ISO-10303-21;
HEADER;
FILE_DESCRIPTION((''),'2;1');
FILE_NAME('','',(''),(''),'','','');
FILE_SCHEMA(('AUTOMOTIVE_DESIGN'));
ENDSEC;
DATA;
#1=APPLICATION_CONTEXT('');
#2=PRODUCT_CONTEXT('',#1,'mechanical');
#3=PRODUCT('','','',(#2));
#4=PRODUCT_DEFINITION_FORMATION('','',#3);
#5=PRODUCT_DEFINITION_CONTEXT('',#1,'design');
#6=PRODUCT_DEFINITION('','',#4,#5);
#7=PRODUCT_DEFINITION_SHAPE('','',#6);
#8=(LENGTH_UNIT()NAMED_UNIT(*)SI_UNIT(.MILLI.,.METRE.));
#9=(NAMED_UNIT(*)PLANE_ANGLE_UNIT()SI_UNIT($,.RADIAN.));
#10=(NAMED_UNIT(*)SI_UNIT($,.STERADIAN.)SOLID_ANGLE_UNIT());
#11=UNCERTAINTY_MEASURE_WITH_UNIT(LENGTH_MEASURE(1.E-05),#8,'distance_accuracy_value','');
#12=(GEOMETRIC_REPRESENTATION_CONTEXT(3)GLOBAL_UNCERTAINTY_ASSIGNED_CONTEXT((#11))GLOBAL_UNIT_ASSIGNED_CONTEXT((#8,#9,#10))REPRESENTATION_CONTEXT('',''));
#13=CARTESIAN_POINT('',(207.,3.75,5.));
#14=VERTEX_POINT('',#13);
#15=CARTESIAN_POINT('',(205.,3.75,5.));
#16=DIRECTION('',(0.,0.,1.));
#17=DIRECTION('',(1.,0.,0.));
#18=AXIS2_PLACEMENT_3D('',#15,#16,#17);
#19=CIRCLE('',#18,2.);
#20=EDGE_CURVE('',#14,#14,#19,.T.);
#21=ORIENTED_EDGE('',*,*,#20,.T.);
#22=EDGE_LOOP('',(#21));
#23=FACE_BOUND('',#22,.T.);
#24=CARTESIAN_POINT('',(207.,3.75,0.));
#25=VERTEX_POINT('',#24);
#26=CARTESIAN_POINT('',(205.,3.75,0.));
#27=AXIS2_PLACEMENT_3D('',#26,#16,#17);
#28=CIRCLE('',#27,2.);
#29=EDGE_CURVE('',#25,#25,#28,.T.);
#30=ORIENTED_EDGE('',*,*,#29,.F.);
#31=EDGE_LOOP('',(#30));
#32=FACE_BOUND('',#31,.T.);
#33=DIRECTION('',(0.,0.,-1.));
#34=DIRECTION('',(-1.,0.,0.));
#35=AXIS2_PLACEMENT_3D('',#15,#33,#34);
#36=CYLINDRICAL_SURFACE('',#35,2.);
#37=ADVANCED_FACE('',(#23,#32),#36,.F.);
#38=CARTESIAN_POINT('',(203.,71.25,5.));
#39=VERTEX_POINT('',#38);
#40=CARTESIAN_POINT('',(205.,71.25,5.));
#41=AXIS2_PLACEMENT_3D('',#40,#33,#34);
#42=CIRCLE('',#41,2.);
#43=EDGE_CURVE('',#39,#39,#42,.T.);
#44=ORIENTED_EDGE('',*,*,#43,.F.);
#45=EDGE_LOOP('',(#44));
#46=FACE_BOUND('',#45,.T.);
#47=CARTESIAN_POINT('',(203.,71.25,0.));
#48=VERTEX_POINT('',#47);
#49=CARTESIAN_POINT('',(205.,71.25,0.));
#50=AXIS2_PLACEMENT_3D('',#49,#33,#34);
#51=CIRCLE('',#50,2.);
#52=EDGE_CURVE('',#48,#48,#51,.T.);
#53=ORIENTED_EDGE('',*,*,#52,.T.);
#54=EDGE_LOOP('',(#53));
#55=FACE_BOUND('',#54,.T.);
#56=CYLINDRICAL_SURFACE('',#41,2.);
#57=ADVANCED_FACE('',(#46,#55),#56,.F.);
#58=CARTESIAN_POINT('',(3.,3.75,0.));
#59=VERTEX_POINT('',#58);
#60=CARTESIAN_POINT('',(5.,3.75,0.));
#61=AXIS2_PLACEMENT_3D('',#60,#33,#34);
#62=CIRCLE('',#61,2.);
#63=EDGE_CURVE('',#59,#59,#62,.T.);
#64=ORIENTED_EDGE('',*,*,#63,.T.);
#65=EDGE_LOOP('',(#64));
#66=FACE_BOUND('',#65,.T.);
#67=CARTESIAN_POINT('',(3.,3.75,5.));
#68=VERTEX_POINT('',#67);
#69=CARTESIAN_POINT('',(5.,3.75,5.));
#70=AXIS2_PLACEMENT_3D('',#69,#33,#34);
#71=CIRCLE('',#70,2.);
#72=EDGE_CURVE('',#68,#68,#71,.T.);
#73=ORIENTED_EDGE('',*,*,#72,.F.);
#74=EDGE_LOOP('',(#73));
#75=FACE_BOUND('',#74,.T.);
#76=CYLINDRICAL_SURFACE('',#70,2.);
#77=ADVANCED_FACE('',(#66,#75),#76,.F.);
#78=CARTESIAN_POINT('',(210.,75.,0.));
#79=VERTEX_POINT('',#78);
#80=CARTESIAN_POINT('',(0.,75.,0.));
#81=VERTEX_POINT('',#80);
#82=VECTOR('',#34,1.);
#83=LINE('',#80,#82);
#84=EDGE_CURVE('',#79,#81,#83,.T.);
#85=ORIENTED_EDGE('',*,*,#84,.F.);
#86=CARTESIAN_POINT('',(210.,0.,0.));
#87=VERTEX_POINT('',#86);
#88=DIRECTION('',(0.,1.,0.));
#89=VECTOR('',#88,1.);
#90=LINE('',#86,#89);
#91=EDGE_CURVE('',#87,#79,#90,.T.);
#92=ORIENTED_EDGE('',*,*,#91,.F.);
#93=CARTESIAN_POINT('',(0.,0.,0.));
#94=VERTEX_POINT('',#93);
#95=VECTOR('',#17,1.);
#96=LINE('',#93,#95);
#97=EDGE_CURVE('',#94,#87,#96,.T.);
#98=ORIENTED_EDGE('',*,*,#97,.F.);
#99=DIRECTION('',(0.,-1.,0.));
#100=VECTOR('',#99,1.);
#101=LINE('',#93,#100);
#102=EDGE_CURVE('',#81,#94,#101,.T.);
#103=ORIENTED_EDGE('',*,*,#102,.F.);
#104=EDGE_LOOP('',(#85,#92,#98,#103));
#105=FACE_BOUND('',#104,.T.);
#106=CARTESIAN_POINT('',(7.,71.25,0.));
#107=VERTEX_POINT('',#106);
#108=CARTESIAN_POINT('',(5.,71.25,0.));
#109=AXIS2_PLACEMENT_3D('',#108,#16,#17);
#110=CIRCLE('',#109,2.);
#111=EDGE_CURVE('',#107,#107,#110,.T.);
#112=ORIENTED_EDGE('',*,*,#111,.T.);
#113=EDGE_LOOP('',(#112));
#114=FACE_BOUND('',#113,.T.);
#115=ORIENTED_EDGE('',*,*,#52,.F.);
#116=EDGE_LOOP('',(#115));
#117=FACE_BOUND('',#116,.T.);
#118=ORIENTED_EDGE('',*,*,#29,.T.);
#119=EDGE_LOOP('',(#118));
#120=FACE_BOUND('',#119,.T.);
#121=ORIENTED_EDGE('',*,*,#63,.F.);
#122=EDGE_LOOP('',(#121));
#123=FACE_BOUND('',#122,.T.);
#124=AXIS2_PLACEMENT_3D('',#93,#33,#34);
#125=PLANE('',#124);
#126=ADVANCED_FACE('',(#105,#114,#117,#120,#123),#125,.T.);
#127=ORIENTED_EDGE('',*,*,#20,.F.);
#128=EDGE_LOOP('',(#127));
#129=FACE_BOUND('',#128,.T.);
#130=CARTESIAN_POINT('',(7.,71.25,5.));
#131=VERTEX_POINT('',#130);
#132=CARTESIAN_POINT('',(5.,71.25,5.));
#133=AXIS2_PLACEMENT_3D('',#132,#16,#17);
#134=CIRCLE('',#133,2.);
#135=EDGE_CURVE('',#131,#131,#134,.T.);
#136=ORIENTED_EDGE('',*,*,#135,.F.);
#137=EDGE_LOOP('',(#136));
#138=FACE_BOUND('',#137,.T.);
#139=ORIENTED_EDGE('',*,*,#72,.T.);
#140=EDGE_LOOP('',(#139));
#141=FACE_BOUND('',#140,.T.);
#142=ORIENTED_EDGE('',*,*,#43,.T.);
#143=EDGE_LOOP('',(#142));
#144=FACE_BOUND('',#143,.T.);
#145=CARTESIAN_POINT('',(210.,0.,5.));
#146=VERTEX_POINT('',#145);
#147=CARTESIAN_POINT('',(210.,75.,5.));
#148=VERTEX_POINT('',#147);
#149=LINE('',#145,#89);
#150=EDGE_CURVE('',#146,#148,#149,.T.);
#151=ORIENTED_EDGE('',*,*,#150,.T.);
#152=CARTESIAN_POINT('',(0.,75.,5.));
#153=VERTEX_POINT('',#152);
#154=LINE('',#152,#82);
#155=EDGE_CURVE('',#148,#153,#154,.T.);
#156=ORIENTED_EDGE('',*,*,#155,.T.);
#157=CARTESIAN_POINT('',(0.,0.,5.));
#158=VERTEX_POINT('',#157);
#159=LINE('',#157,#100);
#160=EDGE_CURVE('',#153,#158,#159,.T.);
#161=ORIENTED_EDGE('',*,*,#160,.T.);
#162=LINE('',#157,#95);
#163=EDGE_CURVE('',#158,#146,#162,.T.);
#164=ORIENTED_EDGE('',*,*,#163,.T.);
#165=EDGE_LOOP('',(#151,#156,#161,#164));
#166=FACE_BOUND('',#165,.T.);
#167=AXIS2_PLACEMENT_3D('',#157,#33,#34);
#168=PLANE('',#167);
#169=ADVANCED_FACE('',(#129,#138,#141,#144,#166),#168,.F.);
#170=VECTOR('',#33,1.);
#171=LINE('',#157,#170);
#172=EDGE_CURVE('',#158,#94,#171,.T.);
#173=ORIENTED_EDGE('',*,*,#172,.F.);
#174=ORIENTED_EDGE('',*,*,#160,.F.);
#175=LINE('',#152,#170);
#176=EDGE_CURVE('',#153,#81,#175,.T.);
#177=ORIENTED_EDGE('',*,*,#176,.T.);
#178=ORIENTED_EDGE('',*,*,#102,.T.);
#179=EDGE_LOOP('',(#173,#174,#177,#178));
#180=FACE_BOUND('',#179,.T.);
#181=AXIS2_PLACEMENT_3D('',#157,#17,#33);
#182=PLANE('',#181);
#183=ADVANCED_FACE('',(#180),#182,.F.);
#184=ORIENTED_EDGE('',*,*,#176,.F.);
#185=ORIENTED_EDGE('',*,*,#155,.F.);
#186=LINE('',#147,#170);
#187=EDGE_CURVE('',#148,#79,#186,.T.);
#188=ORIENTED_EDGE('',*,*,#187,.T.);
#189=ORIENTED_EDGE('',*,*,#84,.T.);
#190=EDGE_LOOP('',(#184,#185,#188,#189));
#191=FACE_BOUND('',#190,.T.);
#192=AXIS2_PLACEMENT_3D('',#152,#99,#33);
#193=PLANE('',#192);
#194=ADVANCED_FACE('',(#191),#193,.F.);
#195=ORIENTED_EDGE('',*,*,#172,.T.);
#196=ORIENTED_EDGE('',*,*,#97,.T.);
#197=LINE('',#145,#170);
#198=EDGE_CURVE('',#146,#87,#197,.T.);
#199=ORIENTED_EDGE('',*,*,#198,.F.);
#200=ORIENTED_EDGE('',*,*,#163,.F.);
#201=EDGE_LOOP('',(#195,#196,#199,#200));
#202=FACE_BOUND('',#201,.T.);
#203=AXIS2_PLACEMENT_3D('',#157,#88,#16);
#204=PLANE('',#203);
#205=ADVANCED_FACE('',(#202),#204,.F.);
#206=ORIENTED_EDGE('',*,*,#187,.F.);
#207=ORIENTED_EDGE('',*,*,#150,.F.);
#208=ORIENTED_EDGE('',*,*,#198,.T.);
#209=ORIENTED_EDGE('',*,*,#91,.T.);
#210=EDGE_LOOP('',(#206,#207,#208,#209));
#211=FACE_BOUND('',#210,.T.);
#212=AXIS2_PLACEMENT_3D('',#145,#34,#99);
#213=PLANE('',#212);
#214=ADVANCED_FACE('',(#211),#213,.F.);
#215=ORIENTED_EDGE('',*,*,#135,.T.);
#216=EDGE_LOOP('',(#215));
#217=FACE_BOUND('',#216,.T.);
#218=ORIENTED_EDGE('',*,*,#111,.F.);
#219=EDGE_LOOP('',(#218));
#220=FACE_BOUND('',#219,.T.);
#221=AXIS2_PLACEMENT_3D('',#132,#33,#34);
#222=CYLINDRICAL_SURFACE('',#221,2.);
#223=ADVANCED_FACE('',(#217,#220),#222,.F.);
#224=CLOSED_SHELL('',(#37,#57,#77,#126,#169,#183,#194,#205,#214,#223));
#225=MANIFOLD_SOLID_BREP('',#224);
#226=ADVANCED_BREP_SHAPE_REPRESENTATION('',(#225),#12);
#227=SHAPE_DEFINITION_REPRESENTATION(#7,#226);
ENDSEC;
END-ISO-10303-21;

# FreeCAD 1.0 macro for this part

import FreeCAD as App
import Part
import Sketcher
from FreeCAD import Vector


def add_polygon(sketch, points):
    """Adds a closed chain of lines whose ends are joined by coincident constraints."""
    first, n = sketch.GeometryCount, len(points)
    for a, b in zip(points, points[1:] + points[:1]):
        sketch.addGeometry(Part.LineSegment(App.Vector(*a, 0), App.Vector(*b, 0)), False)
    for i in range(n):
        sketch.addConstraint(Sketcher.Constraint("Coincident", first + i, 2, first + (i + 1) % n, 1))

doc = App.newDocument("Part")
params = doc.addObject("Spreadsheet::Sheet", "Params")
for row, (alias, value) in enumerate([
    ("sketch1_width", "210 mm"),
    ("sketch1_height", "75 mm"),
    ("pad1_length", "5 mm"),
    ("sketch2_diameter", "4 mm"),
    ("pocket1_length", "5 mm"),
], start=1):
    params.set(f"A{row}", alias)
    params.set(f"B{row}", "=" + value)
    params.setAlias(f"B{row}", alias)

body = doc.addObject("PartDesign::Body", "Body")

# Sketch on XY plane
sketch1 = doc.addObject("Sketcher::SketchObject", "Sketch")
body.addObject(sketch1)
sketch1.AttachmentSupport = (doc.XY_Plane, [""])
sketch1.MapMode = "FlatFace"
add_polygon(sketch1, [(0, 75), (0, 0), (210, 0), (210, 75)])  # lines 0-3
sketch1.addConstraint(Sketcher.Constraint("Vertical", 0))
sketch1.addConstraint(Sketcher.Constraint("Horizontal", 1))
sketch1.addConstraint(Sketcher.Constraint("Vertical", 2))
sketch1.addConstraint(Sketcher.Constraint("Horizontal", 3))
sketch1.addConstraint(Sketcher.Constraint("Coincident", 0, 2, -1, 1))
sketch1.addConstraint(Sketcher.Constraint("DistanceX", 1, 1, 1, 2, 210.0))
sketch1.addConstraint(Sketcher.Constraint("DistanceY", 0, 2, 0, 1, 75.0))
sketch1.setExpression("Constraints[9]", "Params.sketch1_width")
sketch1.setExpression("Constraints[10]", "Params.sketch1_height")
pad1 = doc.addObject("PartDesign::Pad", "Pad")
body.addObject(pad1)
pad1.Profile = sketch1
pad1.setExpression("Length", "Params.pad1_length")

# Sketch on XY plane
sketch2 = doc.addObject("Sketcher::SketchObject", "Sketch001")
body.addObject(sketch2)
sketch2.AttachmentSupport = (doc.XY_Plane, [""])
sketch2.MapMode = "FlatFace"
sketch2.addGeometry(Part.Circle(Vector(205, 71.2, 0), Vector(0, 0, 1), 2), False)
sketch2.addGeometry(Part.Circle(Vector(5, 71.2, 0), Vector(0, 0, 1), 2), False)
sketch2.addGeometry(Part.Circle(Vector(5, 3.8, 0), Vector(0, 0, 1), 2), False)
sketch2.addGeometry(Part.Circle(Vector(205, 3.8, 0), Vector(0, 0, 1), 2), False)
sketch2.addConstraint(Sketcher.Constraint("Equal", 0, 1))
sketch2.addConstraint(Sketcher.Constraint("Equal", 1, 2))
sketch2.addConstraint(Sketcher.Constraint("Equal", 2, 3))
sketch2.addConstraint(Sketcher.Constraint("Horizontal", 0, 3, 1, 3))
sketch2.addConstraint(Sketcher.Constraint("Horizontal", 2, 3, 3, 3))
sketch2.addConstraint(Sketcher.Constraint("Vertical", 1, 3, 2, 3))
sketch2.addConstraint(Sketcher.Constraint("Vertical", 0, 3, 3, 3))
sketch2.addConstraint(Sketcher.Constraint("Diameter", 0, 4.0))
sketch2.addConstraint(Sketcher.Constraint("DistanceX", -1, 1, 0, 3, 205.0))
sketch2.addConstraint(Sketcher.Constraint("DistanceX", -1, 1, 1, 3, 5.0))
sketch2.addConstraint(Sketcher.Constraint("DistanceY", 2, 3, 1, 3, 67.5))
sketch2.addConstraint(Sketcher.Constraint("DistanceY", -1, 1, 0, 3, 71.25))
sketch2.setExpression("Constraints[7]", "Params.sketch2_diameter")
pocket1 = doc.addObject("PartDesign::Pocket", "Pocket")
body.addObject(pocket1)
pocket1.Profile = sketch2
pocket1.setExpression("Length", "Params.pocket1_length")
pocket1.Reversed = True

doc.recompute()
